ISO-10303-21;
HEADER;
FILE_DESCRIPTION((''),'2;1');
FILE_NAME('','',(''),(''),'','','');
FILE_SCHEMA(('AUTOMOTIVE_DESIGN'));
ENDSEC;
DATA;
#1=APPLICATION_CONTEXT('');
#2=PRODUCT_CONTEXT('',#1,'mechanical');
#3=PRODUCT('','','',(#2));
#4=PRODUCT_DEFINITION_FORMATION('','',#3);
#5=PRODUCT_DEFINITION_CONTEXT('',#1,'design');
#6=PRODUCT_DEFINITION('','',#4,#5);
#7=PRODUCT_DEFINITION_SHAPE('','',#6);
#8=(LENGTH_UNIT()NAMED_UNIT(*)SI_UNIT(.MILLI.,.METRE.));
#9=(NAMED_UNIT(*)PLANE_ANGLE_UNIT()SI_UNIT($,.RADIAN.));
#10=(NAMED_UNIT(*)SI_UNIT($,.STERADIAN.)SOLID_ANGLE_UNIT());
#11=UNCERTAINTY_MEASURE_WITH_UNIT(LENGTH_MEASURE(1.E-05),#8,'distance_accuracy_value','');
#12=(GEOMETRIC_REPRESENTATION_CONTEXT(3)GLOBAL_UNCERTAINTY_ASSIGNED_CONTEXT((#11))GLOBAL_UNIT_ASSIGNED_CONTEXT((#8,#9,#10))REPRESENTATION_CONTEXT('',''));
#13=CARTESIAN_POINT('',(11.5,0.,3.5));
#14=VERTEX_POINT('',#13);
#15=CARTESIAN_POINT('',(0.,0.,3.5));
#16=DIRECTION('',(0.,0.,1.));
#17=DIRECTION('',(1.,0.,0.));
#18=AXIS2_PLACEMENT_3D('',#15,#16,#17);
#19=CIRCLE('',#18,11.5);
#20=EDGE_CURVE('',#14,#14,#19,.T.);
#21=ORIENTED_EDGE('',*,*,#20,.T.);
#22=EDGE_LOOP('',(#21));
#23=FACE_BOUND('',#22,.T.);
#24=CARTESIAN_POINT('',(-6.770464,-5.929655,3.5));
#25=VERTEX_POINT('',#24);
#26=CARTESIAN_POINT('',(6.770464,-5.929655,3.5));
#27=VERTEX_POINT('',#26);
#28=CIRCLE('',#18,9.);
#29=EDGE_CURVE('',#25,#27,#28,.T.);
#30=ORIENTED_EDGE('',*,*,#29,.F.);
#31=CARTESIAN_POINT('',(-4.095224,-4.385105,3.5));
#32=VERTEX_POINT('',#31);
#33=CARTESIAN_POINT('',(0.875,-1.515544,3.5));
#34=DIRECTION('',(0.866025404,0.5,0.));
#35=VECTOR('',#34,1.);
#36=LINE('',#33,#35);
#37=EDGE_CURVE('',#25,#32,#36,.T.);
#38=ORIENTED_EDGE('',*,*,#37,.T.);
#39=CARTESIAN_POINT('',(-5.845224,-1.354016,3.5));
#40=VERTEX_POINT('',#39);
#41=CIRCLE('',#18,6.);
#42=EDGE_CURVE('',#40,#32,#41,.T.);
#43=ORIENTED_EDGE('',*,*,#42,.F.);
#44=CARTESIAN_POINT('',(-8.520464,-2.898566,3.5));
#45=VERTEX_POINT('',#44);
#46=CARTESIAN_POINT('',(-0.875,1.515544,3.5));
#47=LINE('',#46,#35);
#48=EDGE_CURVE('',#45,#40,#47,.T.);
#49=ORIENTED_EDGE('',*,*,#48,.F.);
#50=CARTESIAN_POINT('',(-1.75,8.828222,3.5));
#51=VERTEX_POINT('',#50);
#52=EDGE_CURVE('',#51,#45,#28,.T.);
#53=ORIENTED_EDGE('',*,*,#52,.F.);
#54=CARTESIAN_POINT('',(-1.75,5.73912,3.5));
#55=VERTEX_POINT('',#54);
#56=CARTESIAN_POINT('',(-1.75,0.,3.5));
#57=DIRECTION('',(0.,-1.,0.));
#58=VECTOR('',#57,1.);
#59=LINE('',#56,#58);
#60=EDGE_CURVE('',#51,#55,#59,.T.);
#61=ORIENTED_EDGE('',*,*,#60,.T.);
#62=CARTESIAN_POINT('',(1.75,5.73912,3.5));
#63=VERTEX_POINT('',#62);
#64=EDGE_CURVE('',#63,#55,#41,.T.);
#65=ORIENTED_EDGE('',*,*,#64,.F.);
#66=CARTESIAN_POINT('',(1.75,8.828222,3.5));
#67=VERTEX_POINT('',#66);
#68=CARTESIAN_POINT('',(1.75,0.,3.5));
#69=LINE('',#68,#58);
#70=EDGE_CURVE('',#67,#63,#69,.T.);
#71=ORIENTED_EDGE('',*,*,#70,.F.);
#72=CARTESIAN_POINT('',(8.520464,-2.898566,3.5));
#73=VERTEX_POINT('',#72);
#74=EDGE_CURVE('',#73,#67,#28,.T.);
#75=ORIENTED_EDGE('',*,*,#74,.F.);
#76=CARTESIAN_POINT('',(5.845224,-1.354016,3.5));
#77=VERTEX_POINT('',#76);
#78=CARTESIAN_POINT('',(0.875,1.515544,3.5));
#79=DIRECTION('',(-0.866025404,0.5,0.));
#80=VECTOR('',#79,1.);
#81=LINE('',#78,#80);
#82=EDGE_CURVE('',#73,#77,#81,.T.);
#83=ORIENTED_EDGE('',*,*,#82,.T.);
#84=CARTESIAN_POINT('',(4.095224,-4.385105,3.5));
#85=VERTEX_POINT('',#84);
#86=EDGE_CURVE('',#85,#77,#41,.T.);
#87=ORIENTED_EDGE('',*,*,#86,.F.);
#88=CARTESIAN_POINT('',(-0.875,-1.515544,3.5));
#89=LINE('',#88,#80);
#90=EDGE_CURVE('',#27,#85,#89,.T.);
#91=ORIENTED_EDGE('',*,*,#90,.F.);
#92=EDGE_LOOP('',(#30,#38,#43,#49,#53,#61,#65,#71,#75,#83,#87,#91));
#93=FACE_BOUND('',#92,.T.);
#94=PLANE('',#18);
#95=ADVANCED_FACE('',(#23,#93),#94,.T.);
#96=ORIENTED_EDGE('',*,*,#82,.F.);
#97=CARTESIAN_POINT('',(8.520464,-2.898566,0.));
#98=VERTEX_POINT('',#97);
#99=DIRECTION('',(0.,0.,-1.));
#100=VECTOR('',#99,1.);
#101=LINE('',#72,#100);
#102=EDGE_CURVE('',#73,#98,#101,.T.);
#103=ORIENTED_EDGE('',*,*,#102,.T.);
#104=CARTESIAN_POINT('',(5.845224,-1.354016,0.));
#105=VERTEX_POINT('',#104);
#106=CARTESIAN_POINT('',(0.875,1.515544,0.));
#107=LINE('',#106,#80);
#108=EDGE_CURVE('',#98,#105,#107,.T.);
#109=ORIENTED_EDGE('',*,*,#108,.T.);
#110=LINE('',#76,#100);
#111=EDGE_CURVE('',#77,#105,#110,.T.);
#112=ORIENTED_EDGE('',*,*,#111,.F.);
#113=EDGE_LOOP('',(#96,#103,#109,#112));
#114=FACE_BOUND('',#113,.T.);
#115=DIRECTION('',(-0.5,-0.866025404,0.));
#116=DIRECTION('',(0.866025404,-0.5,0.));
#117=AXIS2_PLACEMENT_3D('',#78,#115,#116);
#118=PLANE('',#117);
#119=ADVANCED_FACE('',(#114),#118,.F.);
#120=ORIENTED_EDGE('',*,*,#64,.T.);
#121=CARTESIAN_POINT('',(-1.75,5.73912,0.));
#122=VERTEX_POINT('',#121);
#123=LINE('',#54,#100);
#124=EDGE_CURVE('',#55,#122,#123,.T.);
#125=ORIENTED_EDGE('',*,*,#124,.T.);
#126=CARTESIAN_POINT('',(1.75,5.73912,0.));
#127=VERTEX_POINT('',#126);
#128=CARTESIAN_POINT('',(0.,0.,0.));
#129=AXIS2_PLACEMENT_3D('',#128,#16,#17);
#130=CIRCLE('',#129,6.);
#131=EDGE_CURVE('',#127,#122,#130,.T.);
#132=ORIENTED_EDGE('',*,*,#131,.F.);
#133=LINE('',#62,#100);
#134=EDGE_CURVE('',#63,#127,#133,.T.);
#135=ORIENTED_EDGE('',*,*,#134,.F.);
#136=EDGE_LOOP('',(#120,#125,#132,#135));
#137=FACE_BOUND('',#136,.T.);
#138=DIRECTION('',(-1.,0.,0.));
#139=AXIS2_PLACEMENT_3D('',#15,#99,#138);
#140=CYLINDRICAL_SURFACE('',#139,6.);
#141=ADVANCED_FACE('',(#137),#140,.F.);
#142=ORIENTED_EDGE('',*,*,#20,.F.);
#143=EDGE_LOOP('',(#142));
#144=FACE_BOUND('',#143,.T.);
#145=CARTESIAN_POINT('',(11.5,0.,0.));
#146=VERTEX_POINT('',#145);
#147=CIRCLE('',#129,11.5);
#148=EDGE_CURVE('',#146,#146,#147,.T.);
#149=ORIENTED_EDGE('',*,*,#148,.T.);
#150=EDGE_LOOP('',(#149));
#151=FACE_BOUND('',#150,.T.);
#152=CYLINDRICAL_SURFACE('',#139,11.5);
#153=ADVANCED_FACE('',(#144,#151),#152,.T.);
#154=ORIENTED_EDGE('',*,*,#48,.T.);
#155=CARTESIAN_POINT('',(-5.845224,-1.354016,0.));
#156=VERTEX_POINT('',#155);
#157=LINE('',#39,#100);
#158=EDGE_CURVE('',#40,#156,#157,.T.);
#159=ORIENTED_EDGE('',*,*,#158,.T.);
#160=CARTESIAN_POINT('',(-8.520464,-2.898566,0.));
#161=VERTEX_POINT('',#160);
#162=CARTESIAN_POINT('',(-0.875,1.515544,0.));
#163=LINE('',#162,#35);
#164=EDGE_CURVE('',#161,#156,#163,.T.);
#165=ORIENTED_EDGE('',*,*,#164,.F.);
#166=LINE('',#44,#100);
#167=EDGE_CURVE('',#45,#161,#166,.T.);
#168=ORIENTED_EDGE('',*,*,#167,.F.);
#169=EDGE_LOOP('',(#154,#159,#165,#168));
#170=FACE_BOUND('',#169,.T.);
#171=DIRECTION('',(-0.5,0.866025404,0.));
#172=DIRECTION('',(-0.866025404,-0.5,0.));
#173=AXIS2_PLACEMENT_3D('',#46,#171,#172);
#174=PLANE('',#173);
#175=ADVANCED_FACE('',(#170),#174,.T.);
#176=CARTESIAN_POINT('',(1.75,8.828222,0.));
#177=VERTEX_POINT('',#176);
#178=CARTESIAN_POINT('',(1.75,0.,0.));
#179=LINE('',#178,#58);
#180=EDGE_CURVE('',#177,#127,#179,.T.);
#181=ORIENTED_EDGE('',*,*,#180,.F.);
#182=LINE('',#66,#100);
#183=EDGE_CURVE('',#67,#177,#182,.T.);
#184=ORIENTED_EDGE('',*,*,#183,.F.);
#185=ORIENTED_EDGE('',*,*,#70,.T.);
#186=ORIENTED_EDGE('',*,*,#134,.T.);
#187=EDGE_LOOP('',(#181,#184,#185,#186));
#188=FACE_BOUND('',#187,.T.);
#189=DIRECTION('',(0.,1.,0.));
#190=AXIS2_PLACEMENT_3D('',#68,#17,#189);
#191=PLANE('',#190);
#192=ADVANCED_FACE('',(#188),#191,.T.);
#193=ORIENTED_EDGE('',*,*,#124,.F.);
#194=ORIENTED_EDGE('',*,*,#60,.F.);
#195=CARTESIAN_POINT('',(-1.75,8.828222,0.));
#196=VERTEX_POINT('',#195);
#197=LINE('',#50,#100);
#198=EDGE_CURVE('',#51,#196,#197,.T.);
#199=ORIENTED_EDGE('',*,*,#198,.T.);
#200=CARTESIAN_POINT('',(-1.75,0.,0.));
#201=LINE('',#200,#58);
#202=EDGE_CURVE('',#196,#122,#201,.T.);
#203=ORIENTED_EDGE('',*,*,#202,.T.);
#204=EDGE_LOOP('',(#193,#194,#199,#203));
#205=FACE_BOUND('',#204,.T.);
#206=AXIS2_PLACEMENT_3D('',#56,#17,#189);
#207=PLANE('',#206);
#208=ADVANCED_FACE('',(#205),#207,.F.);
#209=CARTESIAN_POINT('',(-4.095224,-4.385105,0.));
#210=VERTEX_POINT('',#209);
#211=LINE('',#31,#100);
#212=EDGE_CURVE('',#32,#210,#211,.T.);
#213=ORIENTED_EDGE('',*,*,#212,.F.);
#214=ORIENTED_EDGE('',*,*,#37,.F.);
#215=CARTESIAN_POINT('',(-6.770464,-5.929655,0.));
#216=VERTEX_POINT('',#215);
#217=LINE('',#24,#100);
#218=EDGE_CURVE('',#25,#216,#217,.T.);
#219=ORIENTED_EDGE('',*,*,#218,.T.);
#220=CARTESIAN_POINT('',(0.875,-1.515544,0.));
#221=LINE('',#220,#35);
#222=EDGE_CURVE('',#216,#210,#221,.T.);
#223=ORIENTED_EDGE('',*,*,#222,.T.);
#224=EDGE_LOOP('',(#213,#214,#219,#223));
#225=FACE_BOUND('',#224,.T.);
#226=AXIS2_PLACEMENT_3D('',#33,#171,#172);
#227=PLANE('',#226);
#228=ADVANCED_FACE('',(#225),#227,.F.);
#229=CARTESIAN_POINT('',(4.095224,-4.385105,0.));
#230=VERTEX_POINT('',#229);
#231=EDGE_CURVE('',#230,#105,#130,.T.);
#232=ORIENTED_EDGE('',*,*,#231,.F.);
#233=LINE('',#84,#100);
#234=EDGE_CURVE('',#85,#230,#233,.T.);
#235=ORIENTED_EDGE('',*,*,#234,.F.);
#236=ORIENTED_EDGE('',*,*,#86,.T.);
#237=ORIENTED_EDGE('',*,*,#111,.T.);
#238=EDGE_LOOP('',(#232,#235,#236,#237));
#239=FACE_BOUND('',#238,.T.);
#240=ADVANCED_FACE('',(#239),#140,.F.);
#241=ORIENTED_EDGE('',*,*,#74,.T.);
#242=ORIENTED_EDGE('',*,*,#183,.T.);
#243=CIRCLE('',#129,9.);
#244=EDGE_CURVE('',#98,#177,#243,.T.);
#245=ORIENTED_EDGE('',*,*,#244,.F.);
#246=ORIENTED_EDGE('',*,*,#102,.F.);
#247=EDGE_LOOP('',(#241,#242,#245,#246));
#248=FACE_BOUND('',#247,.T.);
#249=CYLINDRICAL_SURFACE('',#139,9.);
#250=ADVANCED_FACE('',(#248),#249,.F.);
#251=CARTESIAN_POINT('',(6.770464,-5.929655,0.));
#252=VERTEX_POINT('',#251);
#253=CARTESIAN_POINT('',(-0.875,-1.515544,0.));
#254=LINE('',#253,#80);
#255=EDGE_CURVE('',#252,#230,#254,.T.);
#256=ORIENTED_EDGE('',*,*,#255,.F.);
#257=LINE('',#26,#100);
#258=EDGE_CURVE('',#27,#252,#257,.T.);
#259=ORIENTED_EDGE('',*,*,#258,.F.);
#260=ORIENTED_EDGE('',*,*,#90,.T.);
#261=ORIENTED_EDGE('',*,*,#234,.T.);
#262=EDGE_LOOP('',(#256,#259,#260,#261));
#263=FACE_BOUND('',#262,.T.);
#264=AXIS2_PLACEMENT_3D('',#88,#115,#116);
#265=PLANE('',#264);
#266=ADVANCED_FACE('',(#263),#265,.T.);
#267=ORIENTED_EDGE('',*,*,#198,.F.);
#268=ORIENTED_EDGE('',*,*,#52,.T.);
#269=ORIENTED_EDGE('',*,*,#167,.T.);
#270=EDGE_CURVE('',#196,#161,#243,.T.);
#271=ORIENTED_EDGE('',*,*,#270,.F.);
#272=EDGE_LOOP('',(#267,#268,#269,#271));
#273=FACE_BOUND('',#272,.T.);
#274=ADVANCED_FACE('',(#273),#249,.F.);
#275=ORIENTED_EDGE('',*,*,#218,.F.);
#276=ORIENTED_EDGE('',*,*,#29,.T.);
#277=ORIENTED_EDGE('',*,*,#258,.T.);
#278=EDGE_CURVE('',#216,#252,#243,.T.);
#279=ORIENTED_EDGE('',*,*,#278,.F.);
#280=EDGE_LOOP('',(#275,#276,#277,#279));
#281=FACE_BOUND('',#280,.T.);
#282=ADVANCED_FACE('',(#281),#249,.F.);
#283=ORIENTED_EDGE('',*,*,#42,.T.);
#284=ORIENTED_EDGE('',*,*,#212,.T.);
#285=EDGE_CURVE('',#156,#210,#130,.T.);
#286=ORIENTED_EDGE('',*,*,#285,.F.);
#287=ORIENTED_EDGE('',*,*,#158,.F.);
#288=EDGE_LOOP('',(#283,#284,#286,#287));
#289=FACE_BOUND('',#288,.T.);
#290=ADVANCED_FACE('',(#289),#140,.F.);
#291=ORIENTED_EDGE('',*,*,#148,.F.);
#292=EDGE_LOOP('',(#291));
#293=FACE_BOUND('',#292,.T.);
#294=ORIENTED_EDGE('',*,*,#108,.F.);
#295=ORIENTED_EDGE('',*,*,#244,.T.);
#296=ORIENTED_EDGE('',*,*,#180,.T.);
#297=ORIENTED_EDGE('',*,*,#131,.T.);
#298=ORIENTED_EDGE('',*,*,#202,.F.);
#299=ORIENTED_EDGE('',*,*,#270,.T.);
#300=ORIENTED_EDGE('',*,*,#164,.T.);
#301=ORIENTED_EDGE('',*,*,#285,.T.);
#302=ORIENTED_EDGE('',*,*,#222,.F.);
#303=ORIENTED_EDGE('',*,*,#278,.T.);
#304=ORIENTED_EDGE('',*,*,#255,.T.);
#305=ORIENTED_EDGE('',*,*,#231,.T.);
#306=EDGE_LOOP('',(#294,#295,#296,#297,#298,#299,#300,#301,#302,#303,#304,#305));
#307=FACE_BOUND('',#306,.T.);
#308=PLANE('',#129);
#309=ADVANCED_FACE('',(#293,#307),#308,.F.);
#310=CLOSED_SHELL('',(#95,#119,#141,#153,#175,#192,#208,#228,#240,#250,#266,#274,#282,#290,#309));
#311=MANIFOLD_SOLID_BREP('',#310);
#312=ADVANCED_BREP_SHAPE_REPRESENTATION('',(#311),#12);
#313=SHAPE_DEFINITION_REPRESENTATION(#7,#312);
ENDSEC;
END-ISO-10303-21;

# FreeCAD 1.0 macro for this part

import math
import FreeCAD as App
import Part
import Sketcher
Q = App.Units.Quantity

doc = App.newDocument("Part")
body = doc.addObject("PartDesign::Body", "Body")

sketch1 = body.newObject("Sketcher::SketchObject", "Sketch")
sketch1.AttachmentSupport = (doc.getObject("XY_Plane"), [""])
sketch1.MapMode = "FlatFace"
sketch1.addGeometry(Part.Circle(App.Vector(0, 0, 0), App.Vector(0, 0, 1), 11.5), False)
sketch1.addGeometry(Part.ArcOfCircle(Part.Circle(App.Vector(0, 0, 0), App.Vector(0, 0, 1), 9), math.radians(-19), math.radians(79)), False)
sketch1.addGeometry(Part.LineSegment(App.Vector(8.5, -2.9, 0), App.Vector(5.8, -1.4, 0)), False)
sketch1.addGeometry(Part.ArcOfCircle(Part.Circle(App.Vector(0, 0, 0), App.Vector(0, 0, 1), 6), math.radians(-47), math.radians(-13)), False)
sketch1.addGeometry(Part.LineSegment(App.Vector(4.1, -4.4, 0), App.Vector(6.8, -5.9, 0)), False)
sketch1.addGeometry(Part.ArcOfCircle(Part.Circle(App.Vector(0, 0, 0), App.Vector(0, 0, 1), 9), math.radians(-139), math.radians(-41)), False)
sketch1.addGeometry(Part.LineSegment(App.Vector(-6.8, -5.9, 0), App.Vector(-4.1, -4.4, 0)), False)
sketch1.addGeometry(Part.ArcOfCircle(Part.Circle(App.Vector(0, 0, 0), App.Vector(0, 0, 1), 6), math.radians(-167), math.radians(-133)), False)
sketch1.addGeometry(Part.LineSegment(App.Vector(-5.8, -1.4, 0), App.Vector(-8.5, -2.9, 0)), False)
sketch1.addGeometry(Part.ArcOfCircle(Part.Circle(App.Vector(0, 0, 0), App.Vector(0, 0, 1), 9), math.radians(101), math.radians(199)), False)
sketch1.addGeometry(Part.LineSegment(App.Vector(-1.8, 8.8, 0), App.Vector(-1.8, 5.7, 0)), False)
sketch1.addGeometry(Part.ArcOfCircle(Part.Circle(App.Vector(0, 0, 0), App.Vector(0, 0, 1), 6), math.radians(73), math.radians(107)), False)
sketch1.addGeometry(Part.LineSegment(App.Vector(1.8, 5.7, 0), App.Vector(1.8, 8.8, 0)), False)
sketch1.addConstraint(Sketcher.Constraint("Coincident", 1, 1, 2, 1))
sketch1.addConstraint(Sketcher.Constraint("Coincident", 2, 2, 3, 2))
sketch1.addConstraint(Sketcher.Constraint("Coincident", 3, 1, 4, 1))
sketch1.addConstraint(Sketcher.Constraint("Coincident", 4, 2, 5, 2))
sketch1.addConstraint(Sketcher.Constraint("Coincident", 5, 1, 6, 1))
sketch1.addConstraint(Sketcher.Constraint("Coincident", 6, 2, 7, 2))
sketch1.addConstraint(Sketcher.Constraint("Coincident", 7, 1, 8, 1))
sketch1.addConstraint(Sketcher.Constraint("Coincident", 8, 2, 9, 2))
sketch1.addConstraint(Sketcher.Constraint("Coincident", 9, 1, 10, 1))
sketch1.addConstraint(Sketcher.Constraint("Coincident", 10, 2, 11, 2))
sketch1.addConstraint(Sketcher.Constraint("Coincident", 11, 1, 12, 1))
sketch1.addConstraint(Sketcher.Constraint("Coincident", 12, 2, 1, 2))
sketch1.addConstraint(Sketcher.Constraint("Vertical", 10))
sketch1.addConstraint(Sketcher.Constraint("Vertical", 12))
sketch1.addConstraint(Sketcher.Constraint("Coincident", 0, 3, -1, 1))
sketch1.addConstraint(Sketcher.Constraint("Coincident", 1, 3, -1, 1))
sketch1.addConstraint(Sketcher.Constraint("Coincident", 3, 3, -1, 1))
sketch1.addConstraint(Sketcher.Constraint("Coincident", 5, 3, -1, 1))
sketch1.addConstraint(Sketcher.Constraint("Coincident", 7, 3, -1, 1))
sketch1.addConstraint(Sketcher.Constraint("Coincident", 9, 3, -1, 1))
sketch1.addConstraint(Sketcher.Constraint("Coincident", 11, 3, -1, 1))
sketch1.addConstraint(Sketcher.Constraint("Equal", 1, 5))
sketch1.addConstraint(Sketcher.Constraint("Equal", 3, 7))
sketch1.addConstraint(Sketcher.Constraint("Equal", 5, 9))
sketch1.addConstraint(Sketcher.Constraint("Equal", 7, 11))
sketch1.addConstraint(Sketcher.Constraint("Parallel", 2, 4))
sketch1.addConstraint(Sketcher.Constraint("Parallel", 6, 8))
sketch1.addConstraint(Sketcher.Constraint("Horizontal", 4, 2, 5, 1))
sketch1.addConstraint(Sketcher.Constraint("Horizontal", 3, 1, 6, 2))
sketch1.addConstraint(Sketcher.Constraint("Horizontal", 2, 2, 7, 1))
sketch1.addConstraint(Sketcher.Constraint("Horizontal", 10, 2, 11, 1))
sketch1.addConstraint(Sketcher.Constraint("Equal", 2, 4))
sketch1.addConstraint(Sketcher.Constraint("Diameter", 0, 23.0))
sketch1.addConstraint(Sketcher.Constraint("Radius", 1, 9.0))
sketch1.addConstraint(Sketcher.Constraint("Radius", 3, 6.0))
sketch1.addConstraint(Sketcher.Constraint("Angle", 2, Q("150 deg")))
sketch1.addConstraint(Sketcher.Constraint("DistanceX", 10, 2, 11, 1, 3.5))
sketch1.addConstraint(Sketcher.Constraint("DistanceX", 3, 1, 2, 2, 1.75))
pad1 = body.newObject("PartDesign::Pad", "Pad")
pad1.Profile = sketch1
pad1.Length = 3.5

doc.recompute()
